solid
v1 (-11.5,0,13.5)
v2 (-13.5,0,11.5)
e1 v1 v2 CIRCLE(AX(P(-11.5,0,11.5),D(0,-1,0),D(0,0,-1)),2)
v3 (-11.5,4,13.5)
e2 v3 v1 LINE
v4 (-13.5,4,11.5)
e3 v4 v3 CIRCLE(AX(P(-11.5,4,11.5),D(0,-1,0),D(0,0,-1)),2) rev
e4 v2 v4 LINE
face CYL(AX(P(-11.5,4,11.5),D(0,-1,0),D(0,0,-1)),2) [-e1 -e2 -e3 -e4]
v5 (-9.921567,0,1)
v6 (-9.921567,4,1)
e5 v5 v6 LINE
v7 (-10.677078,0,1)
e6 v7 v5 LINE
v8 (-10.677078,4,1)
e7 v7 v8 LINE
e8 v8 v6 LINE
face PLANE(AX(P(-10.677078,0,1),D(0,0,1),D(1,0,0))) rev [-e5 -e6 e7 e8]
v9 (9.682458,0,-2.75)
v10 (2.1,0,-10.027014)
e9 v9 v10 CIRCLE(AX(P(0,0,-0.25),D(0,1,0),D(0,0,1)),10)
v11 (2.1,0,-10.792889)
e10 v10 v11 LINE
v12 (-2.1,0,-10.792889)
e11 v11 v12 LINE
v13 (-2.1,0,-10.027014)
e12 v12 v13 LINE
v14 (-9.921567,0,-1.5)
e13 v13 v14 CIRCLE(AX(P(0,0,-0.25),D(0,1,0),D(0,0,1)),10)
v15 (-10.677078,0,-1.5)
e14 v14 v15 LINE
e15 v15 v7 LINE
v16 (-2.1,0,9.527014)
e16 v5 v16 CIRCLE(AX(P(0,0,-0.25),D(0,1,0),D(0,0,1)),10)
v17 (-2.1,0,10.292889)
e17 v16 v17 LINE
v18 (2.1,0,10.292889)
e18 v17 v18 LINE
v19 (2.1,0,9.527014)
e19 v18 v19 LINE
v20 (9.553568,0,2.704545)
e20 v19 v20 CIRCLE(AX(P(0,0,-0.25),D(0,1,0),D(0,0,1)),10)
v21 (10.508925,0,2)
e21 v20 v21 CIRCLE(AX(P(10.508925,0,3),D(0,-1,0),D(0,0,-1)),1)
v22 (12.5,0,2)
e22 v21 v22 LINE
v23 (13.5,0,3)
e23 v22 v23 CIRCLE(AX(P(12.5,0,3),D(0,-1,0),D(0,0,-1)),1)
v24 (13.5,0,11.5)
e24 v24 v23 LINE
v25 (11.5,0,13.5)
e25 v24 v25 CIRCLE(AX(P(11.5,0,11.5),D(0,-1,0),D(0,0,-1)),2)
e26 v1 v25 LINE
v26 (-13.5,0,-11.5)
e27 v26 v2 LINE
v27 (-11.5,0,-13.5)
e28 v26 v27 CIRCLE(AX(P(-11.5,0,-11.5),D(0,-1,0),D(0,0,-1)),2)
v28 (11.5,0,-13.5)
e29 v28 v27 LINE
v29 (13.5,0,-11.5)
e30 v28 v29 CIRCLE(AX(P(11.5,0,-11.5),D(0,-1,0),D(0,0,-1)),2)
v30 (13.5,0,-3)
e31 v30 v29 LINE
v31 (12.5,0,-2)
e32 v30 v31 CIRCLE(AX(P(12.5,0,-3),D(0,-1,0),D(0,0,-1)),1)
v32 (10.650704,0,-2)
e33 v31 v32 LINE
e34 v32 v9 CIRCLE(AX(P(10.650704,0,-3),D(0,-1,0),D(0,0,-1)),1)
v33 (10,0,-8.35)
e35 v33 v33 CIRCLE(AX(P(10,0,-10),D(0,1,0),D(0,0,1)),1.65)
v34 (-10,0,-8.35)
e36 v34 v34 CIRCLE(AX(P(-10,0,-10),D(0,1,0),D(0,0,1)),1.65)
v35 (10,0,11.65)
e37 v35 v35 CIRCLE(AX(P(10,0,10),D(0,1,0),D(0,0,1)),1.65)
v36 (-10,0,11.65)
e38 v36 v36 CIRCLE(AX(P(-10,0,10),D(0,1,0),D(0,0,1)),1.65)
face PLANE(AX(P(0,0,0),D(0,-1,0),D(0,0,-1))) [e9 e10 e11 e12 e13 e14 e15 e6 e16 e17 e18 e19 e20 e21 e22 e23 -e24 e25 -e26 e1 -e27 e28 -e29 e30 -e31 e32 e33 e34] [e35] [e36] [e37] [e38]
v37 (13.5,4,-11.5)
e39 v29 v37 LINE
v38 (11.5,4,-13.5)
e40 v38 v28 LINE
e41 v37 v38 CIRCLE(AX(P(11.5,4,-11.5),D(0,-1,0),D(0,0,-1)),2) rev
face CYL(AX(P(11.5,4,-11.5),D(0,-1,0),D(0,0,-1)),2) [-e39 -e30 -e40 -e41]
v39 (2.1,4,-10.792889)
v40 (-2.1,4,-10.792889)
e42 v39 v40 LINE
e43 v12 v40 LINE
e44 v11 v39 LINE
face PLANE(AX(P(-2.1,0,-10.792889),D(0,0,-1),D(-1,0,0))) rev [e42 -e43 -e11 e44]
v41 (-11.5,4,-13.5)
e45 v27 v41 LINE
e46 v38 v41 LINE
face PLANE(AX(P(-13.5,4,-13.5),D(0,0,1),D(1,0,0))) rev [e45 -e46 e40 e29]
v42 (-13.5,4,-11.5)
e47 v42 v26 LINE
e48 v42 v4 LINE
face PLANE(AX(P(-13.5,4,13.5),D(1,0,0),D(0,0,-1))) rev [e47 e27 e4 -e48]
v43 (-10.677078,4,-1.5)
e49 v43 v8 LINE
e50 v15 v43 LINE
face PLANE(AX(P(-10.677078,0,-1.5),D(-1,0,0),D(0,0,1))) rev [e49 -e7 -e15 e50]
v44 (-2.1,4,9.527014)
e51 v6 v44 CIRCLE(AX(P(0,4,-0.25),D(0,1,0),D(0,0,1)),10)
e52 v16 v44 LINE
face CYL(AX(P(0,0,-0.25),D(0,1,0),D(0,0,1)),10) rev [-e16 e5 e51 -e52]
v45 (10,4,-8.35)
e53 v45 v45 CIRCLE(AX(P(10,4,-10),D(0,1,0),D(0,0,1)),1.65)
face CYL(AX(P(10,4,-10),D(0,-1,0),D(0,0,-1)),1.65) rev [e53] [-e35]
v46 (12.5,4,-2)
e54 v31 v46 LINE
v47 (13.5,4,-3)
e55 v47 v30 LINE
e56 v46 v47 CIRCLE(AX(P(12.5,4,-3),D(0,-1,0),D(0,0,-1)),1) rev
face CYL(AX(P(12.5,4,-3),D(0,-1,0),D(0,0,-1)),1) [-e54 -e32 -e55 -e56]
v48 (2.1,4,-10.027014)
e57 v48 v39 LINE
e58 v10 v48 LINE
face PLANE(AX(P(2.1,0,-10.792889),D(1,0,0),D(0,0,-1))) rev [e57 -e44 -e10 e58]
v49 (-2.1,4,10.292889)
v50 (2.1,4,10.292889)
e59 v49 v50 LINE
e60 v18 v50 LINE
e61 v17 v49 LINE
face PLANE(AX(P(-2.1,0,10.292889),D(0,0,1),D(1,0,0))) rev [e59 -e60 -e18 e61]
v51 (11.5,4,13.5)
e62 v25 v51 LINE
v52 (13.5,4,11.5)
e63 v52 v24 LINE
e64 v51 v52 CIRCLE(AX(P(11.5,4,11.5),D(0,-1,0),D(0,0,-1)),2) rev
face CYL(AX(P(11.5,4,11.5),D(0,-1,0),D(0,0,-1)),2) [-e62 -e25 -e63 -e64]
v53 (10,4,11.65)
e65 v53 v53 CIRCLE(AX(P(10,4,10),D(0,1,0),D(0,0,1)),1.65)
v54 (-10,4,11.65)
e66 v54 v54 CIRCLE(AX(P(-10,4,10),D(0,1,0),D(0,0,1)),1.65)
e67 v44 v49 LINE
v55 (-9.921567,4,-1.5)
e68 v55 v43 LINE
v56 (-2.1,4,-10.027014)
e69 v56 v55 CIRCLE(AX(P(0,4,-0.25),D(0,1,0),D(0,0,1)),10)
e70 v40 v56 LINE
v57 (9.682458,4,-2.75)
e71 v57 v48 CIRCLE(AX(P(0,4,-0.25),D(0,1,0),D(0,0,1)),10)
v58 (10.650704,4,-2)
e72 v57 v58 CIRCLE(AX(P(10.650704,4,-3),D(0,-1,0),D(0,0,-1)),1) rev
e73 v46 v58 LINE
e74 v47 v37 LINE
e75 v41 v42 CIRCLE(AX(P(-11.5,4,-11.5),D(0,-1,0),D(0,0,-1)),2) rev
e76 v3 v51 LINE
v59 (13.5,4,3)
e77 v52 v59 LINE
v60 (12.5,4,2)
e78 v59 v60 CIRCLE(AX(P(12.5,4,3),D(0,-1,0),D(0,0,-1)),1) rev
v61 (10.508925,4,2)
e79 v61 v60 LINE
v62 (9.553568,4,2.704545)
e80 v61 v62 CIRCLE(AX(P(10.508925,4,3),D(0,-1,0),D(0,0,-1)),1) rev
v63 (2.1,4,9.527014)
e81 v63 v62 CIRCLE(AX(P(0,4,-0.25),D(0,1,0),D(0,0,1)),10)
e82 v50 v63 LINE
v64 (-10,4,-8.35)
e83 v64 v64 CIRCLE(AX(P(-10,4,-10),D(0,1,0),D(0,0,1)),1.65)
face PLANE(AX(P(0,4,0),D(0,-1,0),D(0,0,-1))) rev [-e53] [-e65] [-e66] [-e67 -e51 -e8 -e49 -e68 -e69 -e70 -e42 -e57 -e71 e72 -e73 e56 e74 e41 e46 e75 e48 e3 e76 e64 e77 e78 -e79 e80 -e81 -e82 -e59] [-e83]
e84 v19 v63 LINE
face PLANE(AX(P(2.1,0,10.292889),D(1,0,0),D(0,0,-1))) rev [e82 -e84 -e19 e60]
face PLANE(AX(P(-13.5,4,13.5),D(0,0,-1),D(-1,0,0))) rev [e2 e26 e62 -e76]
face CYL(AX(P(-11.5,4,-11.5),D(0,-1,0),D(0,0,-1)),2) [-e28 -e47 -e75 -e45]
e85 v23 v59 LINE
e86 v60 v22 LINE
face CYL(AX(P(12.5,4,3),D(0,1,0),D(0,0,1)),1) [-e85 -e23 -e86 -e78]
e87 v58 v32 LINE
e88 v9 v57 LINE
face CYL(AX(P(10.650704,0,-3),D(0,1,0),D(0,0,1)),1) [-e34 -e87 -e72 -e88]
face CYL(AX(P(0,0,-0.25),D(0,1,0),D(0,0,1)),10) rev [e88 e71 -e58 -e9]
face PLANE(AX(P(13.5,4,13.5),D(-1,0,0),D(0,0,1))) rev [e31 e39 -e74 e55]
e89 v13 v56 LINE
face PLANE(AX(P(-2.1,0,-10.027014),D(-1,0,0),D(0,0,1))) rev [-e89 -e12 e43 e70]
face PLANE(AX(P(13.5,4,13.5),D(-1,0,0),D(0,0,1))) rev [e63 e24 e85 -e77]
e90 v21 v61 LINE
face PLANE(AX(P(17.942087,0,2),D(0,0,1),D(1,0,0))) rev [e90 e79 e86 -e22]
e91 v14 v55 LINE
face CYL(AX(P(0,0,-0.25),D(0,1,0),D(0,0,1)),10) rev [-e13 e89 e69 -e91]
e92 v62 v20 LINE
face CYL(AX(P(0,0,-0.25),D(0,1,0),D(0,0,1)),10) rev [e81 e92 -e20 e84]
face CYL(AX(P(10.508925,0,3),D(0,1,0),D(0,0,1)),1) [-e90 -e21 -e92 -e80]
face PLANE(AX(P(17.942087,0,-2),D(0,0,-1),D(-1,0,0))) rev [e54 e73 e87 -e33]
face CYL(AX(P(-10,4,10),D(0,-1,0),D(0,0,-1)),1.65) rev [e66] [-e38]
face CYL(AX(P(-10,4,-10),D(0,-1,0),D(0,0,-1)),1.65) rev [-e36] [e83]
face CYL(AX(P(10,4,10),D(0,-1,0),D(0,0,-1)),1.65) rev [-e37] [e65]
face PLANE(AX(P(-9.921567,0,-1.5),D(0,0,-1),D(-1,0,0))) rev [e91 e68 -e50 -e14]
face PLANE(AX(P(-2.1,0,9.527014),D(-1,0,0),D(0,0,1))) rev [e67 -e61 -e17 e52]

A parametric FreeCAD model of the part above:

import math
import FreeCAD as App
import Part
import Sketcher
from FreeCAD import Vector
Q = App.Units.Quantity


def edges_at(feature, points):
    """Names of the edges that pass closest to the given points."""
    edges = feature.Shape.Edges
    near = lambda p: min(range(len(edges)), key=lambda i: edges[i].distToShape(Part.Vertex(*p))[0])
    return sorted({f"Edge{near(p) + 1}" for p in points})

doc = App.newDocument("Part")
params = doc.addObject("Spreadsheet::Sheet", "Params")
for row, (alias, value) in enumerate([
    ("sketch1_diameter", "3.3 mm"),
    ("sketch1_width", "27 mm"),
    ("pad1_length", "4 mm"),
    ("sketch2_radius", "10 mm"),
    ("sketch2_width", "4.2 mm"),
    ("sketch2_height", "2.5 mm"),
    ("fillet_radius", "2 mm"),
    ("sketch3_height", "4 mm"),
    ("fillet2_radius", "1 mm"),
], start=1):
    params.set(f"A{row}", alias)
    params.set(f"B{row}", "=" + value)
    params.setAlias(f"B{row}", alias)

body = doc.addObject("PartDesign::Body", "Body")

# Sketch on XZ plane
sketch1 = body.newObject("Sketcher::SketchObject", "Sketch")
sketch1.AttachmentSupport = (doc.getObject("XZ_Plane"), [""])
sketch1.MapMode = "FlatFace"
sketch1.addGeometry(Part.LineSegment(Vector(-13.5, -13.5, 0), Vector(-13.5, 13.5, 0)), False)
sketch1.addGeometry(Part.LineSegment(Vector(-13.5, 13.5, 0), Vector(13.5, 13.5, 0)), False)
sketch1.addGeometry(Part.LineSegment(Vector(13.5, 13.5, 0), Vector(13.5, -13.5, 0)), False)
sketch1.addGeometry(Part.LineSegment(Vector(13.5, -13.5, 0), Vector(-13.5, -13.5, 0)), False)
sketch1.addGeometry(Part.Circle(Vector(-10, 10, 0), Vector(0, 0, 1), 1.6), False)
sketch1.addGeometry(Part.Circle(Vector(10, 10, 0), Vector(0, 0, 1), 1.6), False)
sketch1.addGeometry(Part.Circle(Vector(-10, -10, 0), Vector(0, 0, 1), 1.6), False)
sketch1.addGeometry(Part.Circle(Vector(10, -10, 0), Vector(0, 0, 1), 1.6), False)
sketch1.addConstraint(Sketcher.Constraint("Coincident", 0, 2, 1, 1))
sketch1.addConstraint(Sketcher.Constraint("Coincident", 1, 2, 2, 1))
sketch1.addConstraint(Sketcher.Constraint("Coincident", 2, 2, 3, 1))
sketch1.addConstraint(Sketcher.Constraint("Coincident", 3, 2, 0, 1))
sketch1.addConstraint(Sketcher.Constraint("Vertical", 0))
sketch1.addConstraint(Sketcher.Constraint("Horizontal", 1))
sketch1.addConstraint(Sketcher.Constraint("Vertical", 2))
sketch1.addConstraint(Sketcher.Constraint("Horizontal", 3))
sketch1.addConstraint(Sketcher.Constraint("Equal", 4, 5))
sketch1.addConstraint(Sketcher.Constraint("Equal", 5, 6))
sketch1.addConstraint(Sketcher.Constraint("Equal", 6, 7))
sketch1.addConstraint(Sketcher.Constraint("Symmetric", 5, 3, 6, 3, -1, 1))
sketch1.addConstraint(Sketcher.Constraint("Symmetric", 4, 3, 7, 3, -1, 1))
sketch1.addConstraint(Sketcher.Constraint("Symmetric", 0, 2, 2, 2, -1, 1))
sketch1.addConstraint(Sketcher.Constraint("Symmetric", 4, 3, 5, 3, -2))
sketch1.addConstraint(Sketcher.Constraint("Equal", 3, 0))
sketch1.addConstraint(Sketcher.Constraint("Diameter", 4, Q("3.3 mm")))
sketch1.addConstraint(Sketcher.Constraint("DistanceX", 1, 1, 1, 2, Q("27 mm")))
sketch1.addConstraint(Sketcher.Constraint("DistanceX", 4, 3, -1, 1, Q("10 mm")))
sketch1.addConstraint(Sketcher.Constraint("DistanceY", -1, 1, 4, 3, Q("10 mm")))
sketch1.setExpression("Constraints[16]", "Params.sketch1_diameter")
sketch1.setExpression("Constraints[17]", "Params.sketch1_width")
pad1 = body.newObject("PartDesign::Pad", "Pad")
pad1.Profile = sketch1
pad1.setExpression("Length", "Params.pad1_length")
pad1.Reversed = True

# Sketch on XZ plane
sketch2 = body.newObject("Sketcher::SketchObject", "Sketch001")
sketch2.AttachmentSupport = (doc.getObject("XZ_Plane"), [""])
sketch2.MapMode = "FlatFace"
sketch2.AttachmentOffset = App.Placement(Vector(0, 0, -4), App.Rotation())
sketch2.addGeometry(Part.LineSegment(Vector(-9.9, -1.5, 0), Vector(-10.7, -1.5, 0)), False)
sketch2.addGeometry(Part.LineSegment(Vector(-10.7, -1.5, 0), Vector(-10.7, 1, 0)), False)
sketch2.addGeometry(Part.LineSegment(Vector(-10.7, 1, 0), Vector(-9.9, 1, 0)), False)
sketch2.addGeometry(Part.ArcOfCircle(Part.Circle(Vector(0, -0.2, 0), Vector(0, 0, 1), 10), math.radians(102), math.radians(173)), False)
sketch2.addGeometry(Part.LineSegment(Vector(-2.1, 9.5, 0), Vector(-2.1, 10.3, 0)), False)
sketch2.addGeometry(Part.LineSegment(Vector(-2.1, 10.3, 0), Vector(2.1, 10.3, 0)), False)
sketch2.addGeometry(Part.LineSegment(Vector(2.1, 10.3, 0), Vector(2.1, 9.5, 0)), False)
sketch2.addGeometry(Part.ArcOfCircle(Part.Circle(Vector(0, -0.2, 0), Vector(0, 0, 1), 10), math.radians(7), math.radians(78)), False)
sketch2.addGeometry(Part.LineSegment(Vector(9.9, 1, 0), Vector(10.7, 1, 0)), False)
sketch2.addGeometry(Part.LineSegment(Vector(10.7, 1, 0), Vector(10.7, -1.5, 0)), False)
sketch2.addGeometry(Part.LineSegment(Vector(10.7, -1.5, 0), Vector(9.9, -1.5, 0)), False)
sketch2.addGeometry(Part.ArcOfCircle(Part.Circle(Vector(0, -0.3, 0), Vector(0, 0, 1), 10), math.radians(-78), math.radians(-7)), False)
sketch2.addGeometry(Part.LineSegment(Vector(2.1, -10, 0), Vector(2.1, -10.8, 0)), False)
sketch2.addGeometry(Part.LineSegment(Vector(2.1, -10.8, 0), Vector(-2.1, -10.8, 0)), False)
sketch2.addGeometry(Part.LineSegment(Vector(-2.1, -10.8, 0), Vector(-2.1, -10, 0)), False)
sketch2.addGeometry(Part.ArcOfCircle(Part.Circle(Vector(0, -0.3, 0), Vector(0, 0, 1), 10), math.radians(-173), math.radians(-102)), False)
sketch2.addConstraint(Sketcher.Constraint("Coincident", 0, 2, 1, 1))
sketch2.addConstraint(Sketcher.Constraint("Coincident", 1, 2, 2, 1))
sketch2.addConstraint(Sketcher.Constraint("Coincident", 2, 2, 3, 2))
sketch2.addConstraint(Sketcher.Constraint("Coincident", 3, 1, 4, 1))
sketch2.addConstraint(Sketcher.Constraint("Coincident", 4, 2, 5, 1))
sketch2.addConstraint(Sketcher.Constraint("Coincident", 5, 2, 6, 1))
sketch2.addConstraint(Sketcher.Constraint("Coincident", 6, 2, 7, 2))
sketch2.addConstraint(Sketcher.Constraint("Coincident", 7, 1, 8, 1))
sketch2.addConstraint(Sketcher.Constraint("Coincident", 8, 2, 9, 1))
sketch2.addConstraint(Sketcher.Constraint("Coincident", 9, 2, 10, 1))
sketch2.addConstraint(Sketcher.Constraint("Coincident", 10, 2, 11, 2))
sketch2.addConstraint(Sketcher.Constraint("Coincident", 11, 1, 12, 1))
sketch2.addConstraint(Sketcher.Constraint("Coincident", 12, 2, 13, 1))
sketch2.addConstraint(Sketcher.Constraint("Coincident", 13, 2, 14, 1))
sketch2.addConstraint(Sketcher.Constraint("Coincident", 14, 2, 15, 2))
sketch2.addConstraint(Sketcher.Constraint("Coincident", 15, 1, 0, 1))
sketch2.addConstraint(Sketcher.Constraint("Horizontal", 0))
sketch2.addConstraint(Sketcher.Constraint("Vertical", 1))
sketch2.addConstraint(Sketcher.Constraint("Horizontal", 2))
sketch2.addConstraint(Sketcher.Constraint("Vertical", 4))
sketch2.addConstraint(Sketcher.Constraint("Horizontal", 5))
sketch2.addConstraint(Sketcher.Constraint("Vertical", 6))
sketch2.addConstraint(Sketcher.Constraint("Horizontal", 8))
sketch2.addConstraint(Sketcher.Constraint("Vertical", 9))
sketch2.addConstraint(Sketcher.Constraint("Horizontal", 10))
sketch2.addConstraint(Sketcher.Constraint("Vertical", 12))
sketch2.addConstraint(Sketcher.Constraint("Horizontal", 13))
sketch2.addConstraint(Sketcher.Constraint("Vertical", 14))
sketch2.addConstraint(Sketcher.Constraint("Coincident", 7, 3, 3, 3))
sketch2.addConstraint(Sketcher.Constraint("Coincident", 11, 3, 3, 3))
sketch2.addConstraint(Sketcher.Constraint("Coincident", 15, 3, 3, 3))
sketch2.addConstraint(Sketcher.Constraint("Equal", 3, 7))
sketch2.addConstraint(Sketcher.Constraint("Equal", 7, 11))
sketch2.addConstraint(Sketcher.Constraint("Equal", 11, 15))
sketch2.addConstraint(Sketcher.Constraint("Symmetric", 3, 1, 6, 2, -2))
sketch2.addConstraint(Sketcher.Constraint("Symmetric", 1, 2, 8, 2, -2))
sketch2.addConstraint(Sketcher.Constraint("Horizontal", 0, 2, 9, 2))
sketch2.addConstraint(Sketcher.Constraint("Horizontal", 11, 1, 14, 2))
sketch2.addConstraint(Sketcher.Constraint("Vertical", 7, 1, 10, 2))
sketch2.addConstraint(Sketcher.Constraint("Vertical", 6, 2, 11, 1))
sketch2.addConstraint(Sketcher.Constraint("Equal", 6, 12))
sketch2.addConstraint(Sketcher.Constraint("Radius", 3, Q("10 mm")))
sketch2.addConstraint(Sketcher.Constraint("DistanceX", 5, 1, 5, 2, Q("4.2 mm")))
sketch2.addConstraint(Sketcher.Constraint("DistanceY", 1, 1, 1, 2, Q("2.5 mm")))
sketch2.addConstraint(Sketcher.Constraint("DistanceY", -1, 1, 1, 2, Q("1 mm")))
sketch2.addConstraint(Sketcher.Constraint("DistanceX", 0, 2, 0, 1, Q("0.755511 mm")))
sketch2.addConstraint(Sketcher.Constraint("DistanceY", 4, 1, 4, 2, Q("0.765875 mm")))
sketch2.setExpression("Constraints[41]", "Params.sketch2_radius")
sketch2.setExpression("Constraints[42]", "Params.sketch2_width")
sketch2.setExpression("Constraints[43]", "Params.sketch2_height")
pocket1 = body.newObject("PartDesign::Pocket", "Pocket")
pocket1.Profile = sketch2
pocket1.Type = "ThroughAll"
pocket1.Reversed = True
doc.recompute()

fillet = body.newObject("PartDesign::Fillet", "Fillet")
fillet.Base = (pocket1, edges_at(pocket1, [
    (13.5, 2, 13.5),
    (-13.5, 2, 13.5),
    (-13.5, 2, -13.5),
    (13.5, 2, -13.5),
]))
fillet.setExpression("Radius", "Params.fillet_radius")

# Sketch on XZ plane
sketch3 = body.newObject("Sketcher::SketchObject", "Sketch002")
sketch3.AttachmentSupport = (doc.getObject("XZ_Plane"), [""])
sketch3.MapMode = "FlatFace"
sketch3.AttachmentOffset = App.Placement(Vector(0, 0, -4), App.Rotation())
sketch3.addGeometry(Part.LineSegment(Vector(3.6, -2, 0), Vector(3.6, 2, 0)), False)
sketch3.addGeometry(Part.LineSegment(Vector(3.6, 2, 0), Vector(17.9, 2, 0)), False)
sketch3.addGeometry(Part.LineSegment(Vector(17.9, 2, 0), Vector(17.9, -2, 0)), False)
sketch3.addGeometry(Part.LineSegment(Vector(17.9, -2, 0), Vector(3.6, -2, 0)), False)
sketch3.addConstraint(Sketcher.Constraint("Coincident", 0, 2, 1, 1))
sketch3.addConstraint(Sketcher.Constraint("Coincident", 1, 2, 2, 1))
sketch3.addConstraint(Sketcher.Constraint("Coincident", 2, 2, 3, 1))
sketch3.addConstraint(Sketcher.Constraint("Coincident", 3, 2, 0, 1))
sketch3.addConstraint(Sketcher.Constraint("Vertical", 0))
sketch3.addConstraint(Sketcher.Constraint("Horizontal", 1))
sketch3.addConstraint(Sketcher.Constraint("Vertical", 2))
sketch3.addConstraint(Sketcher.Constraint("Horizontal", 3))
sketch3.addConstraint(Sketcher.Constraint("DistanceY", 0, 1, 0, 2, Q("4 mm")))
sketch3.addConstraint(Sketcher.Constraint("DistanceY", -1, 1, 0, 2, Q("2 mm")))
sketch3.addConstraint(Sketcher.Constraint("DistanceX", 1, 1, 1, 2, Q("14.325765 mm")))
sketch3.addConstraint(Sketcher.Constraint("DistanceX", -1, 1, 0, 2, Q("3.616322 mm")))
sketch3.setExpression("Constraints[8]", "Params.sketch3_height")
pocket2 = body.newObject("PartDesign::Pocket", "Pocket001")
pocket2.Profile = sketch3
pocket2.Type = "ThroughAll"
pocket2.Reversed = True
doc.recompute()

fillet2 = body.newObject("PartDesign::Fillet", "Fillet001")
fillet2.Base = (pocket2, edges_at(pocket2, [
    (9.744, 2, 2),
    (9.846, 2, -2),
    (13.5, 2, -2),
    (13.5, 2, 2),
]))
fillet2.setExpression("Radius", "Params.fillet2_radius")

doc.recompute()
